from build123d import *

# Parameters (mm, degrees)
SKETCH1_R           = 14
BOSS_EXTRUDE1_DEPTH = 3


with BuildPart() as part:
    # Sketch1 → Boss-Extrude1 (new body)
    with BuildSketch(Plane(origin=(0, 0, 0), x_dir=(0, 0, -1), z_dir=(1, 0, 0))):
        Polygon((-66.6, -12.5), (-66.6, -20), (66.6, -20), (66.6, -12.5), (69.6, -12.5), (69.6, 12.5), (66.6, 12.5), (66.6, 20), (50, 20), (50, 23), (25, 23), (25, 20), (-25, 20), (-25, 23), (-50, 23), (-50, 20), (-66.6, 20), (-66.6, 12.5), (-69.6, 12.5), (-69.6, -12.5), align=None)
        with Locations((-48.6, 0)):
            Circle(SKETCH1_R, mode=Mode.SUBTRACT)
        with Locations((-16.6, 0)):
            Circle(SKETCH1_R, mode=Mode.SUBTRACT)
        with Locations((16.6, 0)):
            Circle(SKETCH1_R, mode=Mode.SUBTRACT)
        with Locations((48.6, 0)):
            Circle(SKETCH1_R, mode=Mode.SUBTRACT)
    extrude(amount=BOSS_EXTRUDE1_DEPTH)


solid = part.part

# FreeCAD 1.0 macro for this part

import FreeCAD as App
import Part
import Sketcher
from FreeCAD import Vector
Q = App.Units.Quantity


def add_polygon(sketch, points):
    """Adds a closed chain of lines whose ends are joined by coincident constraints."""
    first, n = sketch.GeometryCount, len(points)
    for a, b in zip(points, points[1:] + points[:1]):
        sketch.addGeometry(Part.LineSegment(App.Vector(*a, 0), App.Vector(*b, 0)), False)
    for i in range(n):
        sketch.addConstraint(Sketcher.Constraint("Coincident", first + i, 2, first + (i + 1) % n, 1))

doc = App.newDocument("Part")
body = doc.addObject("PartDesign::Body", "Body")

# Sketch on YZ plane
sketch1 = doc.addObject("Sketcher::SketchObject", "Sketch")
body.addObject(sketch1)
sketch1.AttachmentSupport = (doc.YZ_Plane, [""])
sketch1.MapMode = "FlatFace"
add_polygon(sketch1, [(-12.5, 66.6), (-20, 66.6), (-20, -66.6), (-12.5, -66.6), (-12.5, -69.6), (12.5, -69.6), (12.5, -66.6), (20, -66.6), (20, -50), (23, -50), (23, -25), (20, -25), (20, 25), (23, 25), (23, 50), (20, 50), (20, 66.6), (12.5, 66.6), (12.5, 69.6), (-12.5, 69.6)])  # lines 0-19
sketch1.addGeometry(Part.Circle(Vector(0, 48.6, 0), Vector(0, 0, 1), 14), False)  # 20
sketch1.addGeometry(Part.Circle(Vector(0, 16.6, 0), Vector(0, 0, 1), 14), False)  # 21
sketch1.addGeometry(Part.Circle(Vector(0, -16.6, 0), Vector(0, 0, 1), 14), False)  # 22
sketch1.addGeometry(Part.Circle(Vector(0, -48.6, 0), Vector(0, 0, 1), 14), False)  # 23
sketch1.addConstraint(Sketcher.Constraint("Horizontal", 0))
sketch1.addConstraint(Sketcher.Constraint("Vertical", 1))
sketch1.addConstraint(Sketcher.Constraint("Horizontal", 2))
sketch1.addConstraint(Sketcher.Constraint("Vertical", 3))
sketch1.addConstraint(Sketcher.Constraint("Horizontal", 4))
sketch1.addConstraint(Sketcher.Constraint("Vertical", 5))
sketch1.addConstraint(Sketcher.Constraint("Horizontal", 6))
sketch1.addConstraint(Sketcher.Constraint("Vertical", 7))
sketch1.addConstraint(Sketcher.Constraint("Horizontal", 8))
sketch1.addConstraint(Sketcher.Constraint("Vertical", 9))
sketch1.addConstraint(Sketcher.Constraint("Horizontal", 10))
sketch1.addConstraint(Sketcher.Constraint("Vertical", 11))
sketch1.addConstraint(Sketcher.Constraint("Horizontal", 12))
sketch1.addConstraint(Sketcher.Constraint("Vertical", 13))
sketch1.addConstraint(Sketcher.Constraint("Horizontal", 14))
sketch1.addConstraint(Sketcher.Constraint("Vertical", 15))
sketch1.addConstraint(Sketcher.Constraint("Horizontal", 16))
sketch1.addConstraint(Sketcher.Constraint("Vertical", 17))
sketch1.addConstraint(Sketcher.Constraint("Horizontal", 18))
sketch1.addConstraint(Sketcher.Constraint("Vertical", 19))
sketch1.addConstraint(Sketcher.Constraint("Equal", 20, 21))
sketch1.addConstraint(Sketcher.Constraint("Equal", 21, 22))
sketch1.addConstraint(Sketcher.Constraint("Equal", 22, 23))
sketch1.addConstraint(Sketcher.Constraint("Symmetric", 21, 3, 22, 3, -1, 1))
sketch1.addConstraint(Sketcher.Constraint("Symmetric", 20, 3, 23, 3, -1, 1))
sketch1.addConstraint(Sketcher.Constraint("Symmetric", 0, 2, 6, 2, -1, 1))
sketch1.addConstraint(Sketcher.Constraint("Symmetric", 1, 2, 15, 2, -1, 1))
sketch1.addConstraint(Sketcher.Constraint("Symmetric", 3, 2, 17, 2, -1, 1))
sketch1.addConstraint(Sketcher.Constraint("Symmetric", 2, 2, 5, 2, -2))
sketch1.addConstraint(Sketcher.Constraint("Symmetric", 9, 2, 12, 2, -1))
sketch1.addConstraint(Sketcher.Constraint("PointOnObject", 20, 3, -2))
sketch1.addConstraint(Sketcher.Constraint("PointOnObject", 21, 3, -2))
sketch1.addConstraint(Sketcher.Constraint("Vertical", 7, 2, 10, 2))
sketch1.addConstraint(Sketcher.Constraint("Vertical", 3, 2, 18, 2))
sketch1.addConstraint(Sketcher.Constraint("Equal", 14, 3))
sketch1.addConstraint(Sketcher.Constraint("Equal", 18, 9))
sketch1.addConstraint(Sketcher.Constraint("Equal", 9, 13))
sketch1.addConstraint(Sketcher.Constraint("Diameter", 20, Q("28 mm")))
sketch1.addConstraint(Sketcher.Constraint("DistanceX", 4, 1, 4, 2, Q("25 mm")))
sketch1.addConstraint(Sketcher.Constraint("DistanceX", 8, 1, 8, 2, Q("3 mm")))
sketch1.addConstraint(Sketcher.Constraint("DistanceY", 11, 1, 11, 2, Q("50 mm")))
sketch1.addConstraint(Sketcher.Constraint("DistanceX", 0, 2, 0, 1, Q("7.5 mm")))
sketch1.addConstraint(Sketcher.Constraint("DistanceY", 1, 2, 1, 1, Q("133.2 mm")))
sketch1.addConstraint(Sketcher.Constraint("DistanceY", 21, 3, 20, 3, Q("32 mm")))
sketch1.addConstraint(Sketcher.Constraint("DistanceY", 20, 3, 0, 2, Q("18 mm")))
pad1 = doc.addObject("PartDesign::Pad", "Pad")
body.addObject(pad1)
pad1.Profile = sketch1
pad1.Length = 3

doc.recompute()
